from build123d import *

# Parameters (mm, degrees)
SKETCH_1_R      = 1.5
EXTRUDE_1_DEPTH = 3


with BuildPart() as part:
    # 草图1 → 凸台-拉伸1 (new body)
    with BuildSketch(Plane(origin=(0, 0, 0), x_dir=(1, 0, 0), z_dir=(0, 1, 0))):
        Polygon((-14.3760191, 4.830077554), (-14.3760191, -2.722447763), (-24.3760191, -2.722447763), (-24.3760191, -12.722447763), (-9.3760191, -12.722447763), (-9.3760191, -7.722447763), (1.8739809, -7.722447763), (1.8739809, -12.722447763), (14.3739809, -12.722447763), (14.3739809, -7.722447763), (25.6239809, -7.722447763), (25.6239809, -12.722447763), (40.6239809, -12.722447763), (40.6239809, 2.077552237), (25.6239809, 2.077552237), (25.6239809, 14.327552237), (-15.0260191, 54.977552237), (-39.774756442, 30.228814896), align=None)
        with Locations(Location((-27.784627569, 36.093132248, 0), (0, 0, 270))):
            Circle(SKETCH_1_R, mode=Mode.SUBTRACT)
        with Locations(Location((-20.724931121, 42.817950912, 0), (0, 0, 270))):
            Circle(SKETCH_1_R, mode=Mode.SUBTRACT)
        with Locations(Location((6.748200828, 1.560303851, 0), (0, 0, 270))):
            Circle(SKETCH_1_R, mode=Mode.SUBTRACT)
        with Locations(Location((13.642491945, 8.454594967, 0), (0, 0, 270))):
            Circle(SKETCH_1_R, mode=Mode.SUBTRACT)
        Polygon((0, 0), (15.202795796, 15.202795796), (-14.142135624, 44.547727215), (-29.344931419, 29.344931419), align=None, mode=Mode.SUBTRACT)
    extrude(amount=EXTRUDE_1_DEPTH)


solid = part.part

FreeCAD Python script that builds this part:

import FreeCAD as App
import Part
import Sketcher

V = App.Vector
Q = App.Units.Quantity

doc = App.newDocument("Part")
body = doc.addObject("PartDesign::Body", "Body")

# Sketch on XZ plane
sketch1 = doc.addObject("Sketcher::SketchObject", "Sketch")
body.addObject(sketch1)
sketch1.AttachmentSupport = (doc.XZ_Plane, [""])
sketch1.MapMode = "FlatFace"
sketch1.addGeometry([
    Part.LineSegment(V(-14.4, -4.8, 0), V(-14.4, 2.7, 0)),  # 0
    Part.LineSegment(V(-14.4, 2.7, 0), V(-24.4, 2.7, 0)),  # 1
    Part.LineSegment(V(-24.4, 2.7, 0), V(-24.4, 12.7, 0)),  # 2
    Part.LineSegment(V(-24.4, 12.7, 0), V(-9.4, 12.7, 0)),  # 3
    Part.LineSegment(V(-9.4, 12.7, 0), V(-9.4, 7.7, 0)),  # 4
    Part.LineSegment(V(-9.4, 7.7, 0), V(1.9, 7.7, 0)),  # 5
    Part.LineSegment(V(1.9, 7.7, 0), V(1.9, 12.7, 0)),  # 6
    Part.LineSegment(V(1.9, 12.7, 0), V(14.4, 12.7, 0)),  # 7
    Part.LineSegment(V(14.4, 12.7, 0), V(14.4, 7.7, 0)),  # 8
    Part.LineSegment(V(14.4, 7.7, 0), V(25.6, 7.7, 0)),  # 9
    Part.LineSegment(V(25.6, 7.7, 0), V(25.6, 12.7, 0)),  # 10
    Part.LineSegment(V(25.6, 12.7, 0), V(40.6, 12.7, 0)),  # 11
    Part.LineSegment(V(40.6, 12.7, 0), V(40.6, -2.1, 0)),  # 12
    Part.LineSegment(V(40.6, -2.1, 0), V(25.6, -2.1, 0)),  # 13
    Part.LineSegment(V(25.6, -2.1, 0), V(25.6, -14.3, 0)),  # 14
    Part.LineSegment(V(25.6, -14.3, 0), V(-15, -55, 0)),  # 15
    Part.LineSegment(V(-15, -55, 0), V(-39.8, -30.2, 0)),  # 16
    Part.LineSegment(V(-39.8, -30.2, 0), V(-14.4, -4.8, 0)),  # 17
    Part.Circle(V(6.7, -1.6, 0), V(0, 0, 1), 1.5),  # 18
    Part.Circle(V(13.6, -8.5, 0), V(0, 0, 1), 1.5),  # 19
    Part.Circle(V(-27.8, -36.1, 0), V(0, 0, 1), 1.5),  # 20
    Part.Circle(V(-20.7, -42.8, 0), V(0, 0, 1), 1.5),  # 21
    Part.LineSegment(V(15.2, -15.2, 0), V(0, 0, 0)),  # 22
    Part.LineSegment(V(0, 0, 0), V(-29.3, -29.3, 0)),  # 23
    Part.LineSegment(V(-29.3, -29.3, 0), V(-14.1, -44.5, 0)),  # 24
    Part.LineSegment(V(-14.1, -44.5, 0), V(15.2, -15.2, 0)),  # 25
], False)
sketch1.addConstraint([
    Sketcher.Constraint("Coincident", 0, 2, 1, 1),
    Sketcher.Constraint("Coincident", 1, 2, 2, 1),
    Sketcher.Constraint("Coincident", 2, 2, 3, 1),
    Sketcher.Constraint("Coincident", 3, 2, 4, 1),
    Sketcher.Constraint("Coincident", 4, 2, 5, 1),
    Sketcher.Constraint("Coincident", 5, 2, 6, 1),
    Sketcher.Constraint("Coincident", 6, 2, 7, 1),
    Sketcher.Constraint("Coincident", 7, 2, 8, 1),
    Sketcher.Constraint("Coincident", 8, 2, 9, 1),
    Sketcher.Constraint("Coincident", 9, 2, 10, 1),
    Sketcher.Constraint("Coincident", 10, 2, 11, 1),
    Sketcher.Constraint("Coincident", 11, 2, 12, 1),
    Sketcher.Constraint("Coincident", 12, 2, 13, 1),
    Sketcher.Constraint("Coincident", 13, 2, 14, 1),
    Sketcher.Constraint("Coincident", 14, 2, 15, 1),
    Sketcher.Constraint("Coincident", 15, 2, 16, 1),
    Sketcher.Constraint("Coincident", 16, 2, 17, 1),
    Sketcher.Constraint("Coincident", 17, 2, 0, 1),
    Sketcher.Constraint("Coincident", 22, 2, 23, 1),
    Sketcher.Constraint("Coincident", 23, 2, 24, 1),
    Sketcher.Constraint("Coincident", 24, 2, 25, 1),
    Sketcher.Constraint("Coincident", 25, 2, 22, 1),
    Sketcher.Constraint("Vertical", 0),
    Sketcher.Constraint("Horizontal", 1),
    Sketcher.Constraint("Vertical", 2),
    Sketcher.Constraint("Horizontal", 3),
    Sketcher.Constraint("Vertical", 4),
    Sketcher.Constraint("Horizontal", 5),
    Sketcher.Constraint("Vertical", 6),
    Sketcher.Constraint("Horizontal", 7),
    Sketcher.Constraint("Vertical", 8),
    Sketcher.Constraint("Horizontal", 9),
    Sketcher.Constraint("Vertical", 10),
    Sketcher.Constraint("Horizontal", 11),
    Sketcher.Constraint("Vertical", 12),
    Sketcher.Constraint("Horizontal", 13),
    Sketcher.Constraint("Vertical", 14),
    Sketcher.Constraint("Coincident", 22, 2, -1, 1),
    Sketcher.Constraint("Equal", 18, 19),
    Sketcher.Constraint("Equal", 19, 20),
    Sketcher.Constraint("Equal", 20, 21),
    Sketcher.Constraint("Perpendicular", 15, 16),
    Sketcher.Constraint("Perpendicular", 16, 17),
    Sketcher.Constraint("Perpendicular", 17, 22),
    Sketcher.Constraint("Perpendicular", 22, 23),
    Sketcher.Constraint("Perpendicular", 23, 24),
    Sketcher.Constraint("Perpendicular", 24, 25),
    Sketcher.Constraint("Horizontal", 3, 2, 6, 2),
    Sketcher.Constraint("Horizontal", 5, 2, 8, 2),
    Sketcher.Constraint("Horizontal", 7, 2, 10, 2),
    Sketcher.Constraint("Vertical", 10, 2, 13, 2),
    Sketcher.Constraint("Equal", 5, 9),
    Sketcher.Constraint("Equal", 3, 11),
    Sketcher.Constraint("Equal", 1, 2),
    Sketcher.Constraint("Diameter", 18, Q("3 mm")),
    Sketcher.Constraint("DistanceX", 1, 2, 1, 1, Q("10 mm")),
    Sketcher.Constraint("DistanceX", 3, 1, 3, 2, Q("15 mm")),
    Sketcher.Constraint("DistanceY", 4, 2, 4, 1, Q("5 mm")),
    Sketcher.Constraint("Angle", 15, Q("-135 deg")),
    Sketcher.Constraint("Distance", 16, Q("35 mm")),
    Sketcher.Constraint("DistanceX", 7, 1, 7, 2, Q("12.5 mm")),
    Sketcher.Constraint("DistanceY", 12, 2, 12, 1, Q("14.8 mm")),
    Sketcher.Constraint("Distance", 22, Q("21.5 mm")),
    Sketcher.Constraint("Distance", 23, Q("41.5 mm")),
    Sketcher.Constraint("DistanceX", 5, 1, 5, 2, Q("11.25 mm")),
    Sketcher.Constraint("DistanceY", 14, 2, 14, 1, Q("12.25 mm")),
    Sketcher.Constraint("DistanceX", 15, 2, 14, 2, Q("40.65 mm")),
    Sketcher.Constraint("DistanceX", 23, 2, 21, 3, Q("8.62 mm")),
    Sketcher.Constraint("DistanceX", -1, 1, 18, 3, Q("6.748201 mm")),
    Sketcher.Constraint("DistanceY", 21, 3, 0, 2, Q("45.540399 mm")),
    Sketcher.Constraint("DistanceY", 20, 3, 23, 2, Q("6.748201 mm")),
    Sketcher.Constraint("DistanceY", 25, 2, 19, 3, Q("6.748201 mm")),
    Sketcher.Constraint("DistanceX", -1, 1, 19, 3, Q("13.642492 mm")),
    Sketcher.Constraint("DistanceY", 21, 3, -1, 1, Q("42.817951 mm")),
    Sketcher.Constraint("DistanceX", 0, 2, -1, 1, Q("14.376019 mm")),
    Sketcher.Constraint("DistanceY", 19, 3, 18, 3, Q("6.894291 mm")),
    Sketcher.Constraint("DistanceX", 20, 3, 18, 3, Q("34.532828 mm")),
])
pad1 = doc.addObject("PartDesign::Pad", "Pad")
body.addObject(pad1)
pad1.Profile = sketch1
pad1.Length = 3
pad1.Reversed = True

doc.recompute()
